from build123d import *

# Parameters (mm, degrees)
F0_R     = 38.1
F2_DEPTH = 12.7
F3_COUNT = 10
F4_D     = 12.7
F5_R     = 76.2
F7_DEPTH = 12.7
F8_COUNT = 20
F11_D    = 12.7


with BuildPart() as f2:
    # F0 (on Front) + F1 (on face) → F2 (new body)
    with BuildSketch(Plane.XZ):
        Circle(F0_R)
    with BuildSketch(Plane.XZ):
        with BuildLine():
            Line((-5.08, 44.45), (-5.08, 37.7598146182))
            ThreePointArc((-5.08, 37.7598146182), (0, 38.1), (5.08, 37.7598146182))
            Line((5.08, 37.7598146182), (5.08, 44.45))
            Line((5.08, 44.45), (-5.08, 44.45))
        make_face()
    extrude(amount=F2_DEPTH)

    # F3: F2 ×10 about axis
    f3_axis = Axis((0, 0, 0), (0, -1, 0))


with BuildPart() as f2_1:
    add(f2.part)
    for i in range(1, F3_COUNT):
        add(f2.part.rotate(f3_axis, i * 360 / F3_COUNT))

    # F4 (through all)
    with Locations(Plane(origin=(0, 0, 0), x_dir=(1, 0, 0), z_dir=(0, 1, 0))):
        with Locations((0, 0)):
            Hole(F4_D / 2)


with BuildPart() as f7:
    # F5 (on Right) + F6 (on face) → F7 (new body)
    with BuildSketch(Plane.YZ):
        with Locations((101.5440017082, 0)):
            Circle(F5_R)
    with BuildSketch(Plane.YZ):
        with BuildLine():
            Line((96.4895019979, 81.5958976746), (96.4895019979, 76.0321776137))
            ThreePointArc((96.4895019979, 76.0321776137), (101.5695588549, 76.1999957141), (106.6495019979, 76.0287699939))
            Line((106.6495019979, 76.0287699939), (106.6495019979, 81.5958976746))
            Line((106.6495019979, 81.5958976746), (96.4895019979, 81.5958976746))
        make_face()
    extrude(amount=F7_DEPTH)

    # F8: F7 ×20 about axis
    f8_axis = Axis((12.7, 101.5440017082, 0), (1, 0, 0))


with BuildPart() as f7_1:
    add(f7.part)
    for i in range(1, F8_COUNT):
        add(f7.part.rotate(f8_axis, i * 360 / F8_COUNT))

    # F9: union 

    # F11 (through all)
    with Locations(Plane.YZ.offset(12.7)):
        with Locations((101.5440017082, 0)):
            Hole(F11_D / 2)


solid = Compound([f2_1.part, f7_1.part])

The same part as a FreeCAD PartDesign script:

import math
import FreeCAD as App
import Part
import Sketcher
Q = App.Units.Quantity

doc = App.newDocument("Part")
params = doc.addObject("Spreadsheet::Sheet", "Params")
for row, (alias, value) in enumerate([
    ("sketch1_radius", "1.5 in"),
    ("sketch1_width", "0.4 in"),
    ("pad1_length", "0.5 in"),
    ("sketch2_diameter", "0.5 in"),
    ("hole_diameter", "0.5 in"),
    ("sketch3_radius", "3 in"),
    ("sketch3_width", "0.4 in"),
    ("pad2_length", "0.5 in"),
    ("sketch4_diameter", "0.5 in"),
    ("hole2_diameter", "0.5 in"),
], start=1):
    params.set(f"A{row}", alias)
    params.set(f"B{row}", "=" + value)
    params.setAlias(f"B{row}", alias)

body = doc.addObject("PartDesign::Body", "Body")

# Sketch on XZ plane
sketch1 = body.newObject("Sketcher::SketchObject", "Sketch")
sketch1.AttachmentSupport = (doc.getObject("XZ_Plane"), [""])
sketch1.MapMode = "FlatFace"
sketch1.addGeometry([
    Part.LineSegment(App.Vector(5, 38, 0), App.Vector(5, 44, 0)),
    Part.LineSegment(App.Vector(5, 44, 0), App.Vector(-5, 44, 0)),
    Part.LineSegment(App.Vector(-5, 44, 0), App.Vector(-5, 38, 0)),
    Part.ArcOfCircle(Part.Circle(App.Vector(0, 0, 0), App.Vector(0, 0, 1), 38), math.radians(98), math.radians(442)),
], False)
sketch1.addConstraint([
    Sketcher.Constraint("Coincident", 0, 2, 1, 1),
    Sketcher.Constraint("Coincident", 1, 2, 2, 1),
    Sketcher.Constraint("Coincident", 2, 2, 3, 1),
    Sketcher.Constraint("Coincident", 3, 2, 0, 1),
    Sketcher.Constraint("Vertical", 0),
    Sketcher.Constraint("Horizontal", 1),
    Sketcher.Constraint("Vertical", 2),
    Sketcher.Constraint("Coincident", 3, 3, -1, 1),
    Sketcher.Constraint("Horizontal", 2, 2, 3, 2),
    Sketcher.Constraint("Radius", 3, Q("1.5 in")),
    Sketcher.Constraint("DistanceX", 1, 2, 1, 1, Q("0.4 in")),
    Sketcher.Constraint("DistanceY", -1, 1, 0, 2, Q("1.75 in")),
])
sketch1.setExpression("Constraints[9]", "Params.sketch1_radius")
sketch1.setExpression("Constraints[10]", "Params.sketch1_width")
pad1 = body.newObject("PartDesign::Pad", "Pad")
pad1.Profile = sketch1
pad1.setExpression("Length", "Params.pad1_length")
body2 = doc.addObject("PartDesign::Body", "Body001")
doc.recompute()

body2.BaseFeature = body
doc.recompute()

body3 = doc.addObject("PartDesign::Body", "Body002")
body3.BaseFeature = body
body3.Placement = App.Placement(App.Vector(0, 0, 0), App.Rotation(App.Vector(0, -1, 0), 36))
boolean = body2.newObject("PartDesign::Boolean", "Boolean")
boolean.Type = "Fuse"
boolean.addObjects([body3])
doc.recompute()

body4 = doc.addObject("PartDesign::Body", "Body003")
body4.BaseFeature = body
body4.Placement = App.Placement(App.Vector(0, 0, 0), App.Rotation(App.Vector(0, -1, 0), 72))
boolean2 = body2.newObject("PartDesign::Boolean", "Boolean001")
boolean2.Type = "Fuse"
boolean2.addObjects([body4])
doc.recompute()

body5 = doc.addObject("PartDesign::Body", "Body004")
body5.BaseFeature = body
body5.Placement = App.Placement(App.Vector(0, 0, 0), App.Rotation(App.Vector(0, -1, 0), 108))
boolean3 = body2.newObject("PartDesign::Boolean", "Boolean002")
boolean3.Type = "Fuse"
boolean3.addObjects([body5])
doc.recompute()

body6 = doc.addObject("PartDesign::Body", "Body005")
body6.BaseFeature = body
body6.Placement = App.Placement(App.Vector(0, 0, 0), App.Rotation(App.Vector(0, -1, 0), 144))
boolean4 = body2.newObject("PartDesign::Boolean", "Boolean003")
boolean4.Type = "Fuse"
boolean4.addObjects([body6])
doc.recompute()

body7 = doc.addObject("PartDesign::Body", "Body006")
body7.BaseFeature = body
body7.Placement = App.Placement(App.Vector(0, 0, 0), App.Rotation(App.Vector(0, -1, 0), 180))
boolean5 = body2.newObject("PartDesign::Boolean", "Boolean004")
boolean5.Type = "Fuse"
boolean5.addObjects([body7])
doc.recompute()

body8 = doc.addObject("PartDesign::Body", "Body007")
body8.BaseFeature = body
body8.Placement = App.Placement(App.Vector(0, 0, 0), App.Rotation(App.Vector(0, -1, 0), 216))
boolean6 = body2.newObject("PartDesign::Boolean", "Boolean005")
boolean6.Type = "Fuse"
boolean6.addObjects([body8])
doc.recompute()

body9 = doc.addObject("PartDesign::Body", "Body008")
body9.BaseFeature = body
body9.Placement = App.Placement(App.Vector(0, 0, 0), App.Rotation(App.Vector(0, -1, 0), 252))
boolean7 = body2.newObject("PartDesign::Boolean", "Boolean006")
boolean7.Type = "Fuse"
boolean7.addObjects([body9])
doc.recompute()

body10 = doc.addObject("PartDesign::Body", "Body009")
body10.BaseFeature = body
body10.Placement = App.Placement(App.Vector(0, 0, 0), App.Rotation(App.Vector(0, -1, 0), 288))
boolean8 = body2.newObject("PartDesign::Boolean", "Boolean007")
boolean8.Type = "Fuse"
boolean8.addObjects([body10])
doc.recompute()

body.Placement = App.Placement(App.Vector(0, 0, 0), App.Rotation(App.Vector(0, -1, 0), 324))
boolean9 = body2.newObject("PartDesign::Boolean", "Boolean008")
boolean9.Type = "Fuse"
boolean9.addObjects([body])

# Sketch on XZ plane
sketch2 = body2.newObject("Sketcher::SketchObject", "Sketch001")
sketch2.AttachmentSupport = (doc.getObject("XZ_Plane001"), [""])
sketch2.MapMode = "FlatFace"
sketch2.addGeometry(Part.Circle(App.Vector(0, 0, 0), App.Vector(0, 0, 1), 6), False)
sketch2.addConstraint([
    Sketcher.Constraint("Coincident", 0, 3, -1, 1),
    Sketcher.Constraint("Diameter", 0, Q("0.5 in")),
])
sketch2.setExpression("Constraints[1]", "Params.sketch2_diameter")
doc.recompute()
hole = body2.newObject("PartDesign::Hole", "Hole")
hole.Profile = sketch2
hole.ThreadType = "None"
hole.setExpression("Diameter", "Params.hole_diameter")
hole.DepthType = "ThroughAll"
hole.Reversed = True
body11 = doc.addObject("PartDesign::Body", "Body010")

# Sketch on YZ plane
sketch3 = body11.newObject("Sketcher::SketchObject", "Sketch002")
sketch3.AttachmentSupport = (doc.getObject("YZ_Plane010"), [""])
sketch3.MapMode = "FlatFace"
sketch3.addGeometry([
    Part.LineSegment(App.Vector(107, 76, 0), App.Vector(107, 82, 0)),
    Part.LineSegment(App.Vector(107, 82, 0), App.Vector(96, 82, 0)),
    Part.LineSegment(App.Vector(96, 82, 0), App.Vector(96, 76, 0)),
    Part.ArcOfCircle(Part.Circle(App.Vector(102, 0, 0), App.Vector(0, 0, 1), 76), math.radians(94), math.radians(446)),
], False)
sketch3.addConstraint([
    Sketcher.Constraint("Coincident", 0, 2, 1, 1),
    Sketcher.Constraint("Coincident", 1, 2, 2, 1),
    Sketcher.Constraint("Coincident", 2, 2, 3, 1),
    Sketcher.Constraint("Coincident", 3, 2, 0, 1),
    Sketcher.Constraint("Vertical", 0),
    Sketcher.Constraint("Horizontal", 1),
    Sketcher.Constraint("Vertical", 2),
    Sketcher.Constraint("PointOnObject", 3, 3, -1),
    Sketcher.Constraint("Radius", 3, Q("3 in")),
    Sketcher.Constraint("DistanceX", 1, 2, 1, 1, Q("0.4 in")),
    Sketcher.Constraint("DistanceY", 2, 2, 2, 1, 5.56372),
    Sketcher.Constraint("DistanceX", -1, 1, 3, 3, 101.544002),
    Sketcher.Constraint("DistanceX", -1, 1, 0, 2, 106.649502),
])
sketch3.setExpression("Constraints[8]", "Params.sketch3_radius")
sketch3.setExpression("Constraints[9]", "Params.sketch3_width")
pad2 = body11.newObject("PartDesign::Pad", "Pad001")
pad2.Profile = sketch3
pad2.setExpression("Length", "Params.pad2_length")
body12 = doc.addObject("PartDesign::Body", "Body011")
doc.recompute()

body12.BaseFeature = body11
doc.recompute()

body13 = doc.addObject("PartDesign::Body", "Body012")
body13.BaseFeature = body11
body13.Placement = App.Placement(App.Vector(0, 4.969917, -31.378822), App.Rotation(App.Vector(1, 0, 0), 18))
boolean10 = body12.newObject("PartDesign::Boolean", "Boolean009")
boolean10.Type = "Fuse"
boolean10.addObjects([body13])
doc.recompute()

body14 = doc.addObject("PartDesign::Body", "Body013")
body14.BaseFeature = body11
body14.Placement = App.Placement(App.Vector(0, 19.393179, -59.686067), App.Rotation(App.Vector(1, 0, 0), 36))
boolean11 = body12.newObject("PartDesign::Boolean", "Boolean010")
boolean11.Type = "Fuse"
boolean11.addObjects([body14])
doc.recompute()

body15 = doc.addObject("PartDesign::Body", "Body014")
body15.BaseFeature = body11
body15.Placement = App.Placement(App.Vector(0, 41.857935, -82.150823), App.Rotation(App.Vector(1, 0, 0), 54))
boolean12 = body12.newObject("PartDesign::Boolean", "Boolean011")
boolean12.Type = "Fuse"
boolean12.addObjects([body15])
doc.recompute()

body16 = doc.addObject("PartDesign::Body", "Body015")
body16.BaseFeature = body11
body16.Placement = App.Placement(App.Vector(0, 70.16518, -96.574085), App.Rotation(App.Vector(1, 0, 0), 72))
boolean13 = body12.newObject("PartDesign::Boolean", "Boolean012")
boolean13.Type = "Fuse"
boolean13.addObjects([body16])
doc.recompute()

body17 = doc.addObject("PartDesign::Body", "Body016")
body17.BaseFeature = body11
body17.Placement = App.Placement(App.Vector(0, 101.544002, -101.544002), App.Rotation(App.Vector(1, 0, 0), 90))
boolean14 = body12.newObject("PartDesign::Boolean", "Boolean013")
boolean14.Type = "Fuse"
boolean14.addObjects([body17])
doc.recompute()

body18 = doc.addObject("PartDesign::Body", "Body017")
body18.BaseFeature = body11
body18.Placement = App.Placement(App.Vector(0, 132.922824, -96.574085), App.Rotation(App.Vector(1, 0, 0), 108))
boolean15 = body12.newObject("PartDesign::Boolean", "Boolean014")
boolean15.Type = "Fuse"
boolean15.addObjects([body18])
doc.recompute()

body19 = doc.addObject("PartDesign::Body", "Body018")
body19.BaseFeature = body11
body19.Placement = App.Placement(App.Vector(0, 161.230068, -82.150823), App.Rotation(App.Vector(1, 0, 0), 126))
boolean16 = body12.newObject("PartDesign::Boolean", "Boolean015")
boolean16.Type = "Fuse"
boolean16.addObjects([body19])
doc.recompute()

body20 = doc.addObject("PartDesign::Body", "Body019")
body20.BaseFeature = body11
body20.Placement = App.Placement(App.Vector(0, 183.694825, -59.686067), App.Rotation(App.Vector(1, 0, 0), 144))
boolean17 = body12.newObject("PartDesign::Boolean", "Boolean016")
boolean17.Type = "Fuse"
boolean17.addObjects([body20])
doc.recompute()

body21 = doc.addObject("PartDesign::Body", "Body020")
body21.BaseFeature = body11
body21.Placement = App.Placement(App.Vector(0, 198.118086, -31.378822), App.Rotation(App.Vector(1, 0, 0), 162))
boolean18 = body12.newObject("PartDesign::Boolean", "Boolean017")
boolean18.Type = "Fuse"
boolean18.addObjects([body21])
doc.recompute()

body22 = doc.addObject("PartDesign::Body", "Body021")
body22.BaseFeature = body11
body22.Placement = App.Placement(App.Vector(0, 203.088003, 0), App.Rotation(App.Vector(1, 0, 0), 180))
boolean19 = body12.newObject("PartDesign::Boolean", "Boolean018")
boolean19.Type = "Fuse"
boolean19.addObjects([body22])
doc.recompute()

body23 = doc.addObject("PartDesign::Body", "Body022")
body23.BaseFeature = body11
body23.Placement = App.Placement(App.Vector(0, 198.118086, 31.378822), App.Rotation(App.Vector(1, 0, 0), 198))
boolean20 = body12.newObject("PartDesign::Boolean", "Boolean019")
boolean20.Type = "Fuse"
boolean20.addObjects([body23])
doc.recompute()

body24 = doc.addObject("PartDesign::Body", "Body023")
body24.BaseFeature = body11
body24.Placement = App.Placement(App.Vector(0, 183.694825, 59.686067), App.Rotation(App.Vector(1, 0, 0), 216))
boolean21 = body12.newObject("PartDesign::Boolean", "Boolean020")
boolean21.Type = "Fuse"
boolean21.addObjects([body24])
doc.recompute()

body25 = doc.addObject("PartDesign::Body", "Body024")
body25.BaseFeature = body11
body25.Placement = App.Placement(App.Vector(0, 161.230068, 82.150823), App.Rotation(App.Vector(1, 0, 0), 234))
boolean22 = body12.newObject("PartDesign::Boolean", "Boolean021")
boolean22.Type = "Fuse"
boolean22.addObjects([body25])
doc.recompute()

body26 = doc.addObject("PartDesign::Body", "Body025")
body26.BaseFeature = body11
body26.Placement = App.Placement(App.Vector(0, 132.922824, 96.574085), App.Rotation(App.Vector(1, 0, 0), 252))
boolean23 = body12.newObject("PartDesign::Boolean", "Boolean022")
boolean23.Type = "Fuse"
boolean23.addObjects([body26])
doc.recompute()

body27 = doc.addObject("PartDesign::Body", "Body026")
body27.BaseFeature = body11
body27.Placement = App.Placement(App.Vector(0, 101.544002, 101.544002), App.Rotation(App.Vector(1, 0, 0), 270))
boolean24 = body12.newObject("PartDesign::Boolean", "Boolean023")
boolean24.Type = "Fuse"
boolean24.addObjects([body27])
doc.recompute()

body28 = doc.addObject("PartDesign::Body", "Body027")
body28.BaseFeature = body11
body28.Placement = App.Placement(App.Vector(0, 70.16518, 96.574085), App.Rotation(App.Vector(1, 0, 0), 288))
boolean25 = body12.newObject("PartDesign::Boolean", "Boolean024")
boolean25.Type = "Fuse"
boolean25.addObjects([body28])
doc.recompute()

body29 = doc.addObject("PartDesign::Body", "Body028")
body29.BaseFeature = body11
body29.Placement = App.Placement(App.Vector(0, 41.857935, 82.150823), App.Rotation(App.Vector(1, 0, 0), 306))
boolean26 = body12.newObject("PartDesign::Boolean", "Boolean025")
boolean26.Type = "Fuse"
boolean26.addObjects([body29])
doc.recompute()

body30 = doc.addObject("PartDesign::Body", "Body029")
body30.BaseFeature = body11
body30.Placement = App.Placement(App.Vector(0, 19.393179, 59.686067), App.Rotation(App.Vector(1, 0, 0), 324))
boolean27 = body12.newObject("PartDesign::Boolean", "Boolean026")
boolean27.Type = "Fuse"
boolean27.addObjects([body30])
doc.recompute()

body11.Placement = App.Placement(App.Vector(0, 4.969917, 31.378822), App.Rotation(App.Vector(1, 0, 0), 342))
boolean28 = body12.newObject("PartDesign::Boolean", "Boolean027")
boolean28.Type = "Fuse"
boolean28.addObjects([body11])

# Sketch on YZ plane
sketch4 = body12.newObject("Sketcher::SketchObject", "Sketch003")
sketch4.AttachmentSupport = (doc.getObject("YZ_Plane011"), [""])
sketch4.MapMode = "FlatFace"
sketch4.AttachmentOffset = App.Placement(App.Vector(0, 0, 0.5 * 25.4), App.Rotation())
sketch4.addGeometry(Part.Circle(App.Vector(102, 0, 0), App.Vector(0, 0, 1), 6), False)
sketch4.addConstraint([
    Sketcher.Constraint("PointOnObject", 0, 3, -1),
    Sketcher.Constraint("Diameter", 0, Q("0.5 in")),
    Sketcher.Constraint("DistanceX", -1, 1, 0, 3, 101.544002),
])
sketch4.setExpression("Constraints[1]", "Params.sketch4_diameter")
doc.recompute()
hole2 = body12.newObject("PartDesign::Hole", "Hole001")
hole2.Profile = sketch4
hole2.ThreadType = "None"
hole2.setExpression("Diameter", "Params.hole2_diameter")
hole2.DepthType = "ThroughAll"

doc.recompute()
